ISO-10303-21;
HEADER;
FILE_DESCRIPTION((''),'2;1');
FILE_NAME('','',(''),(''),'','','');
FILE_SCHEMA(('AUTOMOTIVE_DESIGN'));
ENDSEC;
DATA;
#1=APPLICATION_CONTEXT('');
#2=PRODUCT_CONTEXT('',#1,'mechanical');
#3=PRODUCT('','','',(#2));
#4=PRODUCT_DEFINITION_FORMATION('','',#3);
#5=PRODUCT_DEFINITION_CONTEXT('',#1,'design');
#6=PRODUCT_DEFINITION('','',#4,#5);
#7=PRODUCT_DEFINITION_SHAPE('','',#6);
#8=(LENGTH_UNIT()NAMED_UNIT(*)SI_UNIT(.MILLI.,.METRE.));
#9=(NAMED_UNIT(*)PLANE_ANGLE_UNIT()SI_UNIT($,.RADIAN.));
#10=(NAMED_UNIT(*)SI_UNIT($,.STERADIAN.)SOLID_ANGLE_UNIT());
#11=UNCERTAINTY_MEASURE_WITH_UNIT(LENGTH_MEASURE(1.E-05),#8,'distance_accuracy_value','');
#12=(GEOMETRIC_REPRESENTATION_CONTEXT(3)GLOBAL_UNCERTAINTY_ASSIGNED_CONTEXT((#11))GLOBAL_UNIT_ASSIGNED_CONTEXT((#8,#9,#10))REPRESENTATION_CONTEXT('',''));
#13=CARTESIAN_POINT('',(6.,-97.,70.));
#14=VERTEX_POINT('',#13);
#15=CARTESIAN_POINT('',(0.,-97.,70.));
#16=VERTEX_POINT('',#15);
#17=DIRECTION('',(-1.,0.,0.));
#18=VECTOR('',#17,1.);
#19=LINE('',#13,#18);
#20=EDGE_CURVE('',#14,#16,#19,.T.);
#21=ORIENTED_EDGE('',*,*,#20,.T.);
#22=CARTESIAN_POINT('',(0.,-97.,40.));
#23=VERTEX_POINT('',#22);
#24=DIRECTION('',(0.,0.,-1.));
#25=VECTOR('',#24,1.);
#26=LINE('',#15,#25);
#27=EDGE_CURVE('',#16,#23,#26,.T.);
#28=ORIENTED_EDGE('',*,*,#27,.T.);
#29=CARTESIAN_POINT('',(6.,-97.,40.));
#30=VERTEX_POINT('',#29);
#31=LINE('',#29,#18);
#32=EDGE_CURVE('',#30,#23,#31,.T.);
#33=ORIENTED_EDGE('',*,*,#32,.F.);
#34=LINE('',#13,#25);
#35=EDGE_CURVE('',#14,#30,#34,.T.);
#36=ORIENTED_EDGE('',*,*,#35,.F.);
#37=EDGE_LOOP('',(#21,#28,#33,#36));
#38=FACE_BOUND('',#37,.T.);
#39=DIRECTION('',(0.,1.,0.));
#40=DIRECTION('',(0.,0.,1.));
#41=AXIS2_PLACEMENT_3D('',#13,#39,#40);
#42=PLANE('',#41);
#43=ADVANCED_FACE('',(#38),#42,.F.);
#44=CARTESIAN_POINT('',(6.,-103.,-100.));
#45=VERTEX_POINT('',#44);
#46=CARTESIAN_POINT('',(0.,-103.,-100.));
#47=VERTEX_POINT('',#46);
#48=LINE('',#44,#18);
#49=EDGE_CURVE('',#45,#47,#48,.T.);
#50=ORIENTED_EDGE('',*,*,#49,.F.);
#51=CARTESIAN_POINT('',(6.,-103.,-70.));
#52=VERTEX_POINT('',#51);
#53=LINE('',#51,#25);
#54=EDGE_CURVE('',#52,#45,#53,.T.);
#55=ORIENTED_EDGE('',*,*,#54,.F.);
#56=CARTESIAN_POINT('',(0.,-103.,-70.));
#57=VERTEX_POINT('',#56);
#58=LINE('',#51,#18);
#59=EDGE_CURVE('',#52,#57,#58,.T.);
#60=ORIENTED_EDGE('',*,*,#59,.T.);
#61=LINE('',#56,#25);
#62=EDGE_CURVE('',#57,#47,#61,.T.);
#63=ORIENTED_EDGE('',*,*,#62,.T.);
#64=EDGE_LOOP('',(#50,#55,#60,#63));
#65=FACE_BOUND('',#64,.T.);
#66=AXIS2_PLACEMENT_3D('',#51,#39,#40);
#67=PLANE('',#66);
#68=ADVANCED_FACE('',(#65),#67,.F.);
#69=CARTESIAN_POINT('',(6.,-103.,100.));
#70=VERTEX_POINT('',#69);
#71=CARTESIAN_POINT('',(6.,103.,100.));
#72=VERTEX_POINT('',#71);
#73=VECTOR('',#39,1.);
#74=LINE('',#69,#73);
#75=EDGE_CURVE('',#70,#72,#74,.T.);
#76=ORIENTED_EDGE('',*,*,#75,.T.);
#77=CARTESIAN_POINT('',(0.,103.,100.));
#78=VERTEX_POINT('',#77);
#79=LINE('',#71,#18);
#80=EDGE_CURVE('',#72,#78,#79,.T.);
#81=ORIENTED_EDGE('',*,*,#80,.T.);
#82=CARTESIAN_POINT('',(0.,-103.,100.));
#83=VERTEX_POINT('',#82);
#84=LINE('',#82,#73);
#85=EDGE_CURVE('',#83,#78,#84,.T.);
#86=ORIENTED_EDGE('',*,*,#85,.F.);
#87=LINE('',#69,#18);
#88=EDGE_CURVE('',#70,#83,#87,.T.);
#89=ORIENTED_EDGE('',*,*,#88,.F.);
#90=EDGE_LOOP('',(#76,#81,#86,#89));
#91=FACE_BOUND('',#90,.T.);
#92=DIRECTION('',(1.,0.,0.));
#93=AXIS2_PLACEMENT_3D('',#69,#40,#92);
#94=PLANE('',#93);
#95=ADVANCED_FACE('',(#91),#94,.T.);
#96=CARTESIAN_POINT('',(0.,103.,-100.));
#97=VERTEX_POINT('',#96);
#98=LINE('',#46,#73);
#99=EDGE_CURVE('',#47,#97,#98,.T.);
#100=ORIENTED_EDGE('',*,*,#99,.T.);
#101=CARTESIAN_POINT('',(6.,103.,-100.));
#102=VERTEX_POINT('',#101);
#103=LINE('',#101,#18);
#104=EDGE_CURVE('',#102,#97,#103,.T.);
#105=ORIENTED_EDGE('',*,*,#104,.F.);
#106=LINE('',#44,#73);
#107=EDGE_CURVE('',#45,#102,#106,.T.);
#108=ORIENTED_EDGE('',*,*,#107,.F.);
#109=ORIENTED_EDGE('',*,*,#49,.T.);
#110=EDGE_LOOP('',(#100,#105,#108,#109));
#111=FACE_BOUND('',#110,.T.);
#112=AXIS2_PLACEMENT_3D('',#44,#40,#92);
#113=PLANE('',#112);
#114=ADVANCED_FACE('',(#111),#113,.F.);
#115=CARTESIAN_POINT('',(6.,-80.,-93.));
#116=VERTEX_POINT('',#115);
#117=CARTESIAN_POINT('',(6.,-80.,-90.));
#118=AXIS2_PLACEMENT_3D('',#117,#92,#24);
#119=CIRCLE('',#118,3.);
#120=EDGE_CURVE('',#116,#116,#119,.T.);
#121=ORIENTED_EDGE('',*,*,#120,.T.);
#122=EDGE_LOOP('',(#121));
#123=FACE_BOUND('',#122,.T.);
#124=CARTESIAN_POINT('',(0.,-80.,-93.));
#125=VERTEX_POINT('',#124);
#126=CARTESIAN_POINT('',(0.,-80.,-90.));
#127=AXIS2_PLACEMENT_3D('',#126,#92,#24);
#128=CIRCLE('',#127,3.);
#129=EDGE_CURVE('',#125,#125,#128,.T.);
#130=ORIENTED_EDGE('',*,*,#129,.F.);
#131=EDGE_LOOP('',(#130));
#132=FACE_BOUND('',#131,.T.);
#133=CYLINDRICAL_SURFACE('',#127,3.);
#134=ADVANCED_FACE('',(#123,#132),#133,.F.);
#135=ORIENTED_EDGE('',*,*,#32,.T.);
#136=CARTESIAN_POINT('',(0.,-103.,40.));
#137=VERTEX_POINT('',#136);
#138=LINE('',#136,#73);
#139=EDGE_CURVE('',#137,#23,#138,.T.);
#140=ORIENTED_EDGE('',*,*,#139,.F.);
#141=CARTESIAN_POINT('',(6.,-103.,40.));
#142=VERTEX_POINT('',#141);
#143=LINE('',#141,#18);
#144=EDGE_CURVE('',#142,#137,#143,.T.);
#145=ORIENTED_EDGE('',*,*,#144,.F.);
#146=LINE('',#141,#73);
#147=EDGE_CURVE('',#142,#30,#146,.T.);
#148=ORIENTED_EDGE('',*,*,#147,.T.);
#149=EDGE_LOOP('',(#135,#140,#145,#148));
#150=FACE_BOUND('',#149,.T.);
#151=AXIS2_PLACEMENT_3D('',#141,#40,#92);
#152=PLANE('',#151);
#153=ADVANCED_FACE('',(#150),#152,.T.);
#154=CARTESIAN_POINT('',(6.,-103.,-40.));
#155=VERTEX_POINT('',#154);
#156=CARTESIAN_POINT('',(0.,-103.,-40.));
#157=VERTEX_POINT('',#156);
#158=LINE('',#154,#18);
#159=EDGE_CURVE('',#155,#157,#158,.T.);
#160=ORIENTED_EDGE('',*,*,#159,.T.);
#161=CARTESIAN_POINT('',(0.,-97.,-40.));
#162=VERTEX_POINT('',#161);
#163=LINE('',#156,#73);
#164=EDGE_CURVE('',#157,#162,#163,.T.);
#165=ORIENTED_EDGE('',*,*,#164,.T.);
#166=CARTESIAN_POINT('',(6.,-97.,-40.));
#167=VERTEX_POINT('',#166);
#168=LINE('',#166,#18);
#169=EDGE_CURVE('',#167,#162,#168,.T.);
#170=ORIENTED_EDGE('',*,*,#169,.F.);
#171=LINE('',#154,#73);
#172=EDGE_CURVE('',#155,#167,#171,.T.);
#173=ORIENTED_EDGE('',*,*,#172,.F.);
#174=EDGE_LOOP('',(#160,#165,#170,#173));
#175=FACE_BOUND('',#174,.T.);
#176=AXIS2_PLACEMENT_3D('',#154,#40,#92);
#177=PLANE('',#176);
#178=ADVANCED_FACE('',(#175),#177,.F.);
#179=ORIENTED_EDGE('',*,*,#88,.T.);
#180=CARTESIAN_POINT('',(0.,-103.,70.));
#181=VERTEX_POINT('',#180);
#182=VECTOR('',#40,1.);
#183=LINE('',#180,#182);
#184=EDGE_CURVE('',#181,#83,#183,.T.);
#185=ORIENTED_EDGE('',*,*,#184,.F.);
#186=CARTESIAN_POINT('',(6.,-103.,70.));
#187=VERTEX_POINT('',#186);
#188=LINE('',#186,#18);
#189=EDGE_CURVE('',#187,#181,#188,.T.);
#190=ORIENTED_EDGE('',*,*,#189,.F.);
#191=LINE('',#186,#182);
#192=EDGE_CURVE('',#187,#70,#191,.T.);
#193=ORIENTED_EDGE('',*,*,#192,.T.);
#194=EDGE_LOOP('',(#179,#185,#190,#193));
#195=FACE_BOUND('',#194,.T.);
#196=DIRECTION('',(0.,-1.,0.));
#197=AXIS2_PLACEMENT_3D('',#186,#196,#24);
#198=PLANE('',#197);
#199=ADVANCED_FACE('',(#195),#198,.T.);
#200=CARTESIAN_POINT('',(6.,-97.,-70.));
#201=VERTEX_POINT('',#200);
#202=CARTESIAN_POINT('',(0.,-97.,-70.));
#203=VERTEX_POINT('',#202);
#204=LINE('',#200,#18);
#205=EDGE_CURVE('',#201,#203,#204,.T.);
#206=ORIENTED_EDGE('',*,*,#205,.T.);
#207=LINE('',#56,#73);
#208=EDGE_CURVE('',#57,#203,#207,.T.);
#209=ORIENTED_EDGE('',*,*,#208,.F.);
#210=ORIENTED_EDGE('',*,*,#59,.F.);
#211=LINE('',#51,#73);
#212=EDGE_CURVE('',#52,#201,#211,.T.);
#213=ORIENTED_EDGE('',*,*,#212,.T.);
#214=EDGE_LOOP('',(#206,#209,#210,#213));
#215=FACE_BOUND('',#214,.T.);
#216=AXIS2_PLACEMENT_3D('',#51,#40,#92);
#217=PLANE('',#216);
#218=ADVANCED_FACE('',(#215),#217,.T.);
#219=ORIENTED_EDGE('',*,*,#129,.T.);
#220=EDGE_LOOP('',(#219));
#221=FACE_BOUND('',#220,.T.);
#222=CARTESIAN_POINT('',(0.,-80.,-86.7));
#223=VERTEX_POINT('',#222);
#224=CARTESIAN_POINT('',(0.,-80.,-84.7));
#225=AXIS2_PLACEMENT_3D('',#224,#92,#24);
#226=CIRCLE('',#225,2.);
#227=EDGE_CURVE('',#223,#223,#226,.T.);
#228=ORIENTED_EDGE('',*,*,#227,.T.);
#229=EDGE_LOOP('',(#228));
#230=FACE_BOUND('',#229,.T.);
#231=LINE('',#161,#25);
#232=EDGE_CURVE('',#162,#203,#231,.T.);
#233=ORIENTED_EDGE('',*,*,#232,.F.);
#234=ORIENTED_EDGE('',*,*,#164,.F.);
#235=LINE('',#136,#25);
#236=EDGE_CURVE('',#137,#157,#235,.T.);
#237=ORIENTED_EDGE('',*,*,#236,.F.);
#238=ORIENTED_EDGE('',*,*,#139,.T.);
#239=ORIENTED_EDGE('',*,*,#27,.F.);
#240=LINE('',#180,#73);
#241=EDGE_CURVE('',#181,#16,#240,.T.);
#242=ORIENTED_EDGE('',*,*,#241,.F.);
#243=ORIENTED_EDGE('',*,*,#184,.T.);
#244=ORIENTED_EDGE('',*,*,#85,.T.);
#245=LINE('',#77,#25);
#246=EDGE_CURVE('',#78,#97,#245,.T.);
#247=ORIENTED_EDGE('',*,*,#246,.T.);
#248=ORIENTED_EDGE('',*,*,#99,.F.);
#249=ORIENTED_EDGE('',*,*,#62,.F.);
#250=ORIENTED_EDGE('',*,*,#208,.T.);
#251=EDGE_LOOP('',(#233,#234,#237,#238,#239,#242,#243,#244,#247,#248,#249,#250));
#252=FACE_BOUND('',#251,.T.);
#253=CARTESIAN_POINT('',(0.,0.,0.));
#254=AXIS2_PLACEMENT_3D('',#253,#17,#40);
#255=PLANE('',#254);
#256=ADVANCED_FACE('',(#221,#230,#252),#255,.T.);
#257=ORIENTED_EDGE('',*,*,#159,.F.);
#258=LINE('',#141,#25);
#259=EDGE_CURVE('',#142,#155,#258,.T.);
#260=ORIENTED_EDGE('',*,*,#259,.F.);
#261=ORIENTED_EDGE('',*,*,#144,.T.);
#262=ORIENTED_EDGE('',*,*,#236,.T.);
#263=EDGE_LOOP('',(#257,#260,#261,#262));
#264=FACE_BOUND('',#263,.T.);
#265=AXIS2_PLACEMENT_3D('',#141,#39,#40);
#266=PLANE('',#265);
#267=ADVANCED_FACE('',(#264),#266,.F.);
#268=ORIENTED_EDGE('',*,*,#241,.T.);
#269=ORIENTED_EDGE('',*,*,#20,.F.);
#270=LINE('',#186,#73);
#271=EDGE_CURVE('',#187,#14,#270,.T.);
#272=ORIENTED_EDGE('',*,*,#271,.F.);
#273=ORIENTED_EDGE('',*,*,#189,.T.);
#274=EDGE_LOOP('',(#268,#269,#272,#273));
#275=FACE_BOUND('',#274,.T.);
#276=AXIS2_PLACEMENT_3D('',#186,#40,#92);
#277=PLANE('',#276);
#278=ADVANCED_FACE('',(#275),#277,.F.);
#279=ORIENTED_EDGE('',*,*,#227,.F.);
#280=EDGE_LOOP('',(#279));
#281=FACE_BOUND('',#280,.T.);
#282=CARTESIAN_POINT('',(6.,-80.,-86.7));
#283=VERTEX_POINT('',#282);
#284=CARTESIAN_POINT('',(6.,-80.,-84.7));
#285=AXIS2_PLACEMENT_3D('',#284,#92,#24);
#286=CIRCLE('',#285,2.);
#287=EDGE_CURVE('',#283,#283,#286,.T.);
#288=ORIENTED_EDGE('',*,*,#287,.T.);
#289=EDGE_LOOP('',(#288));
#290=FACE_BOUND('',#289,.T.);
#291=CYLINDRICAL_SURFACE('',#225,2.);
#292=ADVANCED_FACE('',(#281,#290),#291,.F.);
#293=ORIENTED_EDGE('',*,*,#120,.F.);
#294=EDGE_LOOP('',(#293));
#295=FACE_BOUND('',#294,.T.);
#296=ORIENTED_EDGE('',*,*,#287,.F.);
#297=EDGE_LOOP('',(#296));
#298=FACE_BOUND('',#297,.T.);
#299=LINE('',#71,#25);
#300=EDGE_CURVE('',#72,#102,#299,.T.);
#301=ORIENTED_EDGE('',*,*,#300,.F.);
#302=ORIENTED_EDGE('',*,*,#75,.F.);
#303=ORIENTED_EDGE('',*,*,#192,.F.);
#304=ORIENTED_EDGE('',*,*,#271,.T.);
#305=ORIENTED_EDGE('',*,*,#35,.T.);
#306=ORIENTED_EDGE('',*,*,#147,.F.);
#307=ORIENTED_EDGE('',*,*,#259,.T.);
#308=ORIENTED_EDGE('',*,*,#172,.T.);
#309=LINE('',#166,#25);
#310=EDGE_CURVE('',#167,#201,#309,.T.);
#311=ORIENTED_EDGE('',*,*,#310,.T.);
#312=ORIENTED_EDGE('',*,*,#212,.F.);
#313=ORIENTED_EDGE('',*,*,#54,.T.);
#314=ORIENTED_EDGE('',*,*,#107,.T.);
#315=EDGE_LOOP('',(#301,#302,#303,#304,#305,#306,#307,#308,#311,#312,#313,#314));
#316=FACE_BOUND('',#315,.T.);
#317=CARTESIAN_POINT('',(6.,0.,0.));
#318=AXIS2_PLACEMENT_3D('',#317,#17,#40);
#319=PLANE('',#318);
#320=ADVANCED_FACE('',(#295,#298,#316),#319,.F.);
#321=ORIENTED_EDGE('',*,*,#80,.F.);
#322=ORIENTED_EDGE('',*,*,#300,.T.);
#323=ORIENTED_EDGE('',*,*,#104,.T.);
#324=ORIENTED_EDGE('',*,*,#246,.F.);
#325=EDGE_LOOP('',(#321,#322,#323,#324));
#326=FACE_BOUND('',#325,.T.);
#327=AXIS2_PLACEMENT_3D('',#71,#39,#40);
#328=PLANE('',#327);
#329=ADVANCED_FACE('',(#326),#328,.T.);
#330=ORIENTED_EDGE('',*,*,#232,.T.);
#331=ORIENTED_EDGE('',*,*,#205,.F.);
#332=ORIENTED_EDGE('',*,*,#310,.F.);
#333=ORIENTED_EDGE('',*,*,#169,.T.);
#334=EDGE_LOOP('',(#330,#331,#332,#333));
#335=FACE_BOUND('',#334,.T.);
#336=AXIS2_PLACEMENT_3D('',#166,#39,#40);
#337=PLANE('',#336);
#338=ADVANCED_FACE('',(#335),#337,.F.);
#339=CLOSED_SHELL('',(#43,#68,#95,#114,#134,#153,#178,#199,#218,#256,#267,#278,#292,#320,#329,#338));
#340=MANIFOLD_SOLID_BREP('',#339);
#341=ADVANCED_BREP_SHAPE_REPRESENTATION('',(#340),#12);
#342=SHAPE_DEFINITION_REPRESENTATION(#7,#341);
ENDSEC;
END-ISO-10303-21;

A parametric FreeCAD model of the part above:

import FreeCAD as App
import Part
import Sketcher

V = App.Vector

doc = App.newDocument("Part")
body = doc.addObject("PartDesign::Body", "Body")

# Sketch on YZ plane
sketch1 = body.newObject("Sketcher::SketchObject", "Sketch")
sketch1.AttachmentSupport = (doc.getObject("YZ_Plane"), [""])
sketch1.MapMode = "FlatFace"
sketch1.addGeometry([
    Part.LineSegment(V(-103, 100, 0), V(-103, 70, 0)),  # 0
    Part.LineSegment(V(-103, 70, 0), V(-97, 70, 0)),  # 1
    Part.LineSegment(V(-97, 70, 0), V(-97, 40, 0)),  # 2
    Part.LineSegment(V(-97, 40, 0), V(-103, 40, 0)),  # 3
    Part.LineSegment(V(-103, 40, 0), V(-103, -40, 0)),  # 4
    Part.LineSegment(V(-103, -40, 0), V(-97, -40, 0)),  # 5
    Part.LineSegment(V(-97, -40, 0), V(-97, -70, 0)),  # 6
    Part.LineSegment(V(-97, -70, 0), V(-103, -70, 0)),  # 7
    Part.LineSegment(V(-103, -70, 0), V(-103, -100, 0)),  # 8
    Part.LineSegment(V(-103, -100, 0), V(103, -100, 0)),  # 9
    Part.LineSegment(V(103, -100, 0), V(103, 100, 0)),  # 10
    Part.LineSegment(V(103, 100, 0), V(-103, 100, 0)),  # 11
], False)
sketch1.addConstraint([
    Sketcher.Constraint("Coincident", 0, 2, 1, 1),
    Sketcher.Constraint("Coincident", 1, 2, 2, 1),
    Sketcher.Constraint("Coincident", 2, 2, 3, 1),
    Sketcher.Constraint("Coincident", 3, 2, 4, 1),
    Sketcher.Constraint("Coincident", 4, 2, 5, 1),
    Sketcher.Constraint("Coincident", 5, 2, 6, 1),
    Sketcher.Constraint("Coincident", 6, 2, 7, 1),
    Sketcher.Constraint("Coincident", 7, 2, 8, 1),
    Sketcher.Constraint("Coincident", 8, 2, 9, 1),
    Sketcher.Constraint("Coincident", 9, 2, 10, 1),
    Sketcher.Constraint("Coincident", 10, 2, 11, 1),
    Sketcher.Constraint("Coincident", 11, 2, 0, 1),
    Sketcher.Constraint("Vertical", 0),
    Sketcher.Constraint("Horizontal", 1),
    Sketcher.Constraint("Vertical", 2),
    Sketcher.Constraint("Horizontal", 3),
    Sketcher.Constraint("Vertical", 4),
    Sketcher.Constraint("Horizontal", 5),
    Sketcher.Constraint("Vertical", 6),
    Sketcher.Constraint("Horizontal", 7),
    Sketcher.Constraint("Vertical", 8),
    Sketcher.Constraint("Horizontal", 9),
    Sketcher.Constraint("Vertical", 10),
    Sketcher.Constraint("Horizontal", 11),
    Sketcher.Constraint("Symmetric", 8, 2, 10, 2, -1, 1),
    Sketcher.Constraint("Symmetric", 2, 2, 5, 2, -1),
    Sketcher.Constraint("Symmetric", 0, 2, 7, 2, -1),
    Sketcher.Constraint("Vertical", 0, 2, 3, 2),
    Sketcher.Constraint("Equal", 0, 2),
    Sketcher.Constraint("DistanceX", 1, 1, 1, 2, 6.0),
    Sketcher.Constraint("DistanceX", 9, 1, 9, 2, 206.0),
    Sketcher.Constraint("DistanceY", 0, 2, 0, 1, 30.0),
    Sketcher.Constraint("DistanceY", 4, 2, 4, 1, 80.0),
])
pad1 = body.newObject("PartDesign::Pad", "Pad")
pad1.Profile = sketch1
pad1.Length = 6

# Sketch on YZ plane
sketch2 = body.newObject("Sketcher::SketchObject", "Sketch001")
sketch2.AttachmentSupport = (doc.getObject("YZ_Plane"), [""])
sketch2.MapMode = "FlatFace"
sketch2.AttachmentOffset = App.Placement(V(0, 0, 6), App.Rotation())
sketch2.addGeometry([
    Part.Circle(V(-80, -90, 0), V(0, 0, 1), 3),
    Part.Circle(V(-80, -84.7, 0), V(0, 0, 1), 2),
], False)
sketch2.addConstraint([
    Sketcher.Constraint("Vertical", 0, 3, 1, 3),
    Sketcher.Constraint("Diameter", 0, 6.0),
    Sketcher.Constraint("Diameter", 1, 4.0),
    Sketcher.Constraint("DistanceX", 0, 3, -1, 1, 80.0),
    Sketcher.Constraint("DistanceY", 0, 3, -1, 1, 90.0),
    Sketcher.Constraint("DistanceY", 1, 3, -1, 1, 84.7),
])
pocket1 = body.newObject("PartDesign::Pocket", "Pocket")
pocket1.Profile = sketch2
pocket1.Length = 6

doc.recompute()
